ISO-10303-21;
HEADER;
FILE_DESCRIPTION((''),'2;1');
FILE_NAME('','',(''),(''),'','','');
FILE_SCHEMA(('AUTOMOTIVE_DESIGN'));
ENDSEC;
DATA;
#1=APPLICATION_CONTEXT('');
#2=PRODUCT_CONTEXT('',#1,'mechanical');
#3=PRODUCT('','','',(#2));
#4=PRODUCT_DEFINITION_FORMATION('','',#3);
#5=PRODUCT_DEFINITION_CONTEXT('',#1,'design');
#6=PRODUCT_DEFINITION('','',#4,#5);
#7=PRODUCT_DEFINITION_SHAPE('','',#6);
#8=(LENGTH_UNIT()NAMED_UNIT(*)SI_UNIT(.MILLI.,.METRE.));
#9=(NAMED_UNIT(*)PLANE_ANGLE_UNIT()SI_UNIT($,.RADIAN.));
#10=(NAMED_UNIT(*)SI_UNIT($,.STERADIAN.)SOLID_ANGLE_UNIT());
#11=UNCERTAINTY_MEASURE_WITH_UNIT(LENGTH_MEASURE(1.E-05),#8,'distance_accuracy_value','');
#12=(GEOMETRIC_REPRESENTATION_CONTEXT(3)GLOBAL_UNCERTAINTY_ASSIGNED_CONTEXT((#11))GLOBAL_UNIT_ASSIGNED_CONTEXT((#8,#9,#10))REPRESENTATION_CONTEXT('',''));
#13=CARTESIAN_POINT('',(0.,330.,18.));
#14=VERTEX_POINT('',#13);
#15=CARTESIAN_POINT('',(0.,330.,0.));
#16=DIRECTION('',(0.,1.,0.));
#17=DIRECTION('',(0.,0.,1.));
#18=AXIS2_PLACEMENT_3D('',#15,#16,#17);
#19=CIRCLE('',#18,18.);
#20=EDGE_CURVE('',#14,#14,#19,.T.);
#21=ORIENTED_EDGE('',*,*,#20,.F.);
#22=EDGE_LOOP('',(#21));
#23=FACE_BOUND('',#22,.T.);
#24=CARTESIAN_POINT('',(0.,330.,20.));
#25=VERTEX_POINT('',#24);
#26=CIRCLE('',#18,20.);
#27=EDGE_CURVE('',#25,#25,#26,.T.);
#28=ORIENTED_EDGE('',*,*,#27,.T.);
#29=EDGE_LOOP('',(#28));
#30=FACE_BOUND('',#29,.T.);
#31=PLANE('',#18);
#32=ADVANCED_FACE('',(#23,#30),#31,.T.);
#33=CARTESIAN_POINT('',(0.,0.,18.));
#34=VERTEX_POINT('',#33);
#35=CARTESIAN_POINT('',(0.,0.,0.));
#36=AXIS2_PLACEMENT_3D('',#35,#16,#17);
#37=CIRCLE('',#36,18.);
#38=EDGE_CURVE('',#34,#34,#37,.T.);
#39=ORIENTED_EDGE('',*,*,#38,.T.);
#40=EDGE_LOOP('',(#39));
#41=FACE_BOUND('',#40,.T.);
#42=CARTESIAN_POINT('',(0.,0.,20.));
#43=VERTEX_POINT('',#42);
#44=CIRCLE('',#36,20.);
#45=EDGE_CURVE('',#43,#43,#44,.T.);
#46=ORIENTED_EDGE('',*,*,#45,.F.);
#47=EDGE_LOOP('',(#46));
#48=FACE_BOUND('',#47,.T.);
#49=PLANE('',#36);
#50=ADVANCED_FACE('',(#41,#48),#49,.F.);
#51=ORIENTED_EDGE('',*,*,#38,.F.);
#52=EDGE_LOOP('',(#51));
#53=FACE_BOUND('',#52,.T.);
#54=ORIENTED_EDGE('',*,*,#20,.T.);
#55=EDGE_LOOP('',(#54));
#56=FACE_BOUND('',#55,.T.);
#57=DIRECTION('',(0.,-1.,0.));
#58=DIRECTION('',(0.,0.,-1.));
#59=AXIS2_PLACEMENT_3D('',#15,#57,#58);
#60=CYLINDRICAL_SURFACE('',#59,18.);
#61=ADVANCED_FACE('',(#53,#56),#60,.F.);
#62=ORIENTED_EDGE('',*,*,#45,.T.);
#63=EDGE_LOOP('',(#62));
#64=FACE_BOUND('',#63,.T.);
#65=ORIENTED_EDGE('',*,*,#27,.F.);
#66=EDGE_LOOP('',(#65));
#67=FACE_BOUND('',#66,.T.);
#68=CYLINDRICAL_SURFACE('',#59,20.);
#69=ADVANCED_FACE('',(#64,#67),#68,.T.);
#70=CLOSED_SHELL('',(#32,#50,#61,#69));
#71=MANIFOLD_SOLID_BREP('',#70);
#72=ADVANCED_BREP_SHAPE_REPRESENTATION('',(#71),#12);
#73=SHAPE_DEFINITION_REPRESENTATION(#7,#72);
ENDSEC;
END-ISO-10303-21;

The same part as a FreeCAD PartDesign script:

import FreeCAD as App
import Part
import Sketcher
from FreeCAD import Vector

doc = App.newDocument("Part")
body = doc.addObject("PartDesign::Body", "Body")

# Sketch on XZ plane
sketch1 = doc.addObject("Sketcher::SketchObject", "Sketch")
body.addObject(sketch1)
sketch1.AttachmentSupport = (doc.XZ_Plane, [""])
sketch1.MapMode = "FlatFace"
sketch1.addGeometry([
    Part.Circle(Vector(0, 0, 0), Vector(0, 0, 1), 20),
    Part.Circle(Vector(0, 0, 0), Vector(0, 0, 1), 18),
], False)
sketch1.addConstraint([
    Sketcher.Constraint("Coincident", 0, 3, -1, 1),
    Sketcher.Constraint("Coincident", 1, 3, -1, 1),
    Sketcher.Constraint("Diameter", 0, 40.0),
    Sketcher.Constraint("Diameter", 1, 36.0),
])
pad1 = doc.addObject("PartDesign::Pad", "Pad")
body.addObject(pad1)
pad1.Profile = sketch1
pad1.Length = 330
pad1.Reversed = True

doc.recompute()
